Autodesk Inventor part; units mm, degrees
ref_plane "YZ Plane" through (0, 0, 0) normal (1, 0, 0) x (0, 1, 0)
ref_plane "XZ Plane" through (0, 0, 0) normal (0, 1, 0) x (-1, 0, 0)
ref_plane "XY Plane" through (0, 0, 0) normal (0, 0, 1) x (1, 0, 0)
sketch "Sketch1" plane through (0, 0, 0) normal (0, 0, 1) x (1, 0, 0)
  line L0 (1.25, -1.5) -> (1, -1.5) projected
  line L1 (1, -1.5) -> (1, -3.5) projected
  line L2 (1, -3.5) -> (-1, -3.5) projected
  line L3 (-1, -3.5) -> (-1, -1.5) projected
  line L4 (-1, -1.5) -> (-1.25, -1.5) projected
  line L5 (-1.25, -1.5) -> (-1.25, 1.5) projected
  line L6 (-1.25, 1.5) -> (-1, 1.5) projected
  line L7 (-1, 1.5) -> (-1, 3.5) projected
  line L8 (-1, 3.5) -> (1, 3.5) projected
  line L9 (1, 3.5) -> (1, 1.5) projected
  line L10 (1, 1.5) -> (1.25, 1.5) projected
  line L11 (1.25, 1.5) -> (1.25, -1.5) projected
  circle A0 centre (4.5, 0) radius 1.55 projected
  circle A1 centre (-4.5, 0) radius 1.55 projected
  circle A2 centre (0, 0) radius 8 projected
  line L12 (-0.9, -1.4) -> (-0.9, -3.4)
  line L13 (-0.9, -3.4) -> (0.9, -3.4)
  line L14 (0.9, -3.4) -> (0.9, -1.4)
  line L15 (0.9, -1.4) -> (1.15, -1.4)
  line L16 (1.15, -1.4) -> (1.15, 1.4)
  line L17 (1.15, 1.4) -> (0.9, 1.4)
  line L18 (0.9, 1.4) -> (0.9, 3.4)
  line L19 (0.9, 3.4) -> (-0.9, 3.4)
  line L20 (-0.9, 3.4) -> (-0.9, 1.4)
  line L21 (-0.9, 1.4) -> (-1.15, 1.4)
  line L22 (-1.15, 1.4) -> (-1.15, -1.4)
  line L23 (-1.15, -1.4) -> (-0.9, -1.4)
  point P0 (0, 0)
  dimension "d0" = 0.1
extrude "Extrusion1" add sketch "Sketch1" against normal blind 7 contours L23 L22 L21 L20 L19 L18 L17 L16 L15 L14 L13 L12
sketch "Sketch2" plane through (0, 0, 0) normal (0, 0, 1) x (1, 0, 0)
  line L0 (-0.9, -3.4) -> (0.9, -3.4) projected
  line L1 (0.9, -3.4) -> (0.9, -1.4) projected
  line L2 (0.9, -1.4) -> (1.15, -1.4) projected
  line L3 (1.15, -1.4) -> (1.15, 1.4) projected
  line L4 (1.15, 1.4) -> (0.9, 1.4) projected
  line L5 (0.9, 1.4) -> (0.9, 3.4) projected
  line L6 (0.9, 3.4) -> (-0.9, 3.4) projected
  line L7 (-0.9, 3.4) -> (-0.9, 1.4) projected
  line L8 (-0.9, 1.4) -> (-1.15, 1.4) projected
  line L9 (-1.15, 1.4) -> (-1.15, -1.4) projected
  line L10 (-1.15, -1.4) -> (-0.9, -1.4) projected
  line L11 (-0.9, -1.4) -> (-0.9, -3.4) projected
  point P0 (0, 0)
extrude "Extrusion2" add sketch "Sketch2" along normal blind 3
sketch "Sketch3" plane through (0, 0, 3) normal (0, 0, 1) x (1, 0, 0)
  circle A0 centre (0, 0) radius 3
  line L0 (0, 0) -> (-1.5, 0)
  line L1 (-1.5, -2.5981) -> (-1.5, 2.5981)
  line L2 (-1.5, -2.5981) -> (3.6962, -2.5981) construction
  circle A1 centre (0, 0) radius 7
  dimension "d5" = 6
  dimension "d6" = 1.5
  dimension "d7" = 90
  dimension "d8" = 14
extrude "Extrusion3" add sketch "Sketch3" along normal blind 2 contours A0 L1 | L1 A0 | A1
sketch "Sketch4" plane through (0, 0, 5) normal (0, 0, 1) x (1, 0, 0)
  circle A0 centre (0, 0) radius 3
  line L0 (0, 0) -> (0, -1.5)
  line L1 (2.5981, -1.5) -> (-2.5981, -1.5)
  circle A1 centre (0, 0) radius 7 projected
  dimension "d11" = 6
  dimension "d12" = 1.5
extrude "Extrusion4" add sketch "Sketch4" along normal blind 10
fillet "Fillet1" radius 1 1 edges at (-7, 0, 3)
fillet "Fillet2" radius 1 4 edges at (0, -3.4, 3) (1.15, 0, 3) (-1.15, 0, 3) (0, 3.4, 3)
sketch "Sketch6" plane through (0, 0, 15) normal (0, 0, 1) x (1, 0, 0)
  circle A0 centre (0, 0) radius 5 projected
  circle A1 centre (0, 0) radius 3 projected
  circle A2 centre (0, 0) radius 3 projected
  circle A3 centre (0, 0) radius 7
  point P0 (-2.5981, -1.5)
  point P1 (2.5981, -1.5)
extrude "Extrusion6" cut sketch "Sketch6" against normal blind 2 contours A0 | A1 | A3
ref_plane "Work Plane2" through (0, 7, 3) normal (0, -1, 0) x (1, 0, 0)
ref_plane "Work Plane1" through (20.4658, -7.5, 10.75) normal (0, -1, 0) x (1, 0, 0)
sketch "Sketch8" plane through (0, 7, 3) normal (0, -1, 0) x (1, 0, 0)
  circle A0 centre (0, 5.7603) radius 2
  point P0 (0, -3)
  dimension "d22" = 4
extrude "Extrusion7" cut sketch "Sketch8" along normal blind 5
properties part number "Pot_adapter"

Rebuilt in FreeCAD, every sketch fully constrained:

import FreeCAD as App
import Part
import Sketcher

V = App.Vector


def edges_at(feature, points):
    """Names of the edges that pass closest to the given points."""
    edges = feature.Shape.Edges
    near = lambda p: min(range(len(edges)), key=lambda i: edges[i].distToShape(Part.Vertex(*p))[0])
    return sorted({f"Edge{near(p) + 1}" for p in points})


def add_polygon(sketch, points):
    """Adds a closed chain of lines whose ends are joined by coincident constraints."""
    first, n = sketch.GeometryCount, len(points)
    for a, b in zip(points, points[1:] + points[:1]):
        sketch.addGeometry(Part.LineSegment(App.Vector(*a, 0), App.Vector(*b, 0)), False)
    for i in range(n):
        sketch.addConstraint(Sketcher.Constraint("Coincident", first + i, 2, first + (i + 1) % n, 1))

doc = App.newDocument("Part")
body = doc.addObject("PartDesign::Body", "Body")

# Sketch on XY plane
sketch1 = doc.addObject("Sketcher::SketchObject", "Sketch")
body.addObject(sketch1)
sketch1.AttachmentSupport = (doc.XY_Plane, [""])
sketch1.MapMode = "FlatFace"
add_polygon(sketch1, [(-1.15, -1.4), (-0.9, -1.4), (-0.9, -3.4), (0.9, -3.4), (0.9, -1.4), (1.15, -1.4), (1.15, 1.4), (0.9, 1.4), (0.9, 3.4), (-0.9, 3.4), (-0.9, 1.4), (-1.15, 1.4)])  # lines 0-11
sketch1.addConstraint([
    Sketcher.Constraint("Horizontal", 0),
    Sketcher.Constraint("Vertical", 1),
    Sketcher.Constraint("Horizontal", 2),
    Sketcher.Constraint("Vertical", 3),
    Sketcher.Constraint("Horizontal", 4),
    Sketcher.Constraint("Vertical", 5),
    Sketcher.Constraint("Horizontal", 6),
    Sketcher.Constraint("Vertical", 7),
    Sketcher.Constraint("Horizontal", 8),
    Sketcher.Constraint("Vertical", 9),
    Sketcher.Constraint("Horizontal", 10),
    Sketcher.Constraint("Vertical", 11),
    Sketcher.Constraint("Symmetric", 0, 2, 6, 2, -1, 1),
    Sketcher.Constraint("Symmetric", 2, 2, 8, 2, -1, 1),
    Sketcher.Constraint("Symmetric", 4, 2, 10, 2, -1, 1),
    Sketcher.Constraint("Symmetric", 0, 2, 3, 2, -2),
    Sketcher.Constraint("DistanceY", 1, 2, 1, 1, 2.0),
    Sketcher.Constraint("DistanceX", 2, 1, 2, 2, 1.8),
    Sketcher.Constraint("DistanceY", 5, 1, 5, 2, 2.8),
    Sketcher.Constraint("DistanceX", 0, 1, 0, 2, 0.25),
])
pad1 = doc.addObject("PartDesign::Pad", "Pad")
body.addObject(pad1)
pad1.Profile = sketch1
pad1.Length = 7
pad1.Reversed = True

# Sketch on XY plane
sketch2 = doc.addObject("Sketcher::SketchObject", "Sketch001")
body.addObject(sketch2)
sketch2.AttachmentSupport = (doc.XY_Plane, [""])
sketch2.MapMode = "FlatFace"
add_polygon(sketch2, [(-0.9, -1.4), (-0.9, -3.4), (0.9, -3.4), (0.9, -1.4), (1.15, -1.4), (1.15, 1.4), (0.9, 1.4), (0.9, 3.4), (-0.9, 3.4), (-0.9, 1.4), (-1.15, 1.4), (-1.15, -1.4)])  # lines 0-11
sketch2.addConstraint([
    Sketcher.Constraint("Vertical", 0),
    Sketcher.Constraint("Horizontal", 1),
    Sketcher.Constraint("Vertical", 2),
    Sketcher.Constraint("Horizontal", 3),
    Sketcher.Constraint("Vertical", 4),
    Sketcher.Constraint("Horizontal", 5),
    Sketcher.Constraint("Vertical", 6),
    Sketcher.Constraint("Horizontal", 7),
    Sketcher.Constraint("Vertical", 8),
    Sketcher.Constraint("Horizontal", 9),
    Sketcher.Constraint("Vertical", 10),
    Sketcher.Constraint("Horizontal", 11),
    Sketcher.Constraint("Symmetric", 0, 2, 6, 2, -1, 1),
    Sketcher.Constraint("Symmetric", 2, 2, 8, 2, -1, 1),
    Sketcher.Constraint("Symmetric", 4, 2, 10, 2, -1, 1),
    Sketcher.Constraint("Symmetric", 5, 2, 8, 2, -2),
    Sketcher.Constraint("DistanceY", 0, 2, 0, 1, 2.0),
    Sketcher.Constraint("DistanceX", 1, 1, 1, 2, 1.8),
    Sketcher.Constraint("DistanceY", 4, 1, 4, 2, 2.8),
    Sketcher.Constraint("DistanceX", 3, 1, 3, 2, 0.25),
])
pad2 = doc.addObject("PartDesign::Pad", "Pad001")
body.addObject(pad2)
pad2.Profile = sketch2
pad2.Length = 3

# Sketch on XY plane
sketch3 = doc.addObject("Sketcher::SketchObject", "Sketch002")
body.addObject(sketch3)
sketch3.AttachmentSupport = (doc.XY_Plane, [""])
sketch3.MapMode = "FlatFace"
sketch3.AttachmentOffset = App.Placement(V(0, 0, 3), App.Rotation())
sketch3.addGeometry(Part.Circle(V(0, 0, 0), V(0, 0, 1), 7), False)
sketch3.addConstraint([
    Sketcher.Constraint("Coincident", 0, 3, -1, 1),
    Sketcher.Constraint("Diameter", 0, 14.0),
])
pad3 = doc.addObject("PartDesign::Pad", "Pad002")
body.addObject(pad3)
pad3.Profile = sketch3
pad3.Length = 2

# Sketch on XY plane
sketch4 = doc.addObject("Sketcher::SketchObject", "Sketch003")
body.addObject(sketch4)
sketch4.AttachmentSupport = (doc.XY_Plane, [""])
sketch4.MapMode = "FlatFace"
sketch4.AttachmentOffset = App.Placement(V(0, 0, 5), App.Rotation())
sketch4.addGeometry([
    Part.Circle(V(0, 0, 0), V(0, 0, 1), 7),
    Part.Circle(V(0, 0, 0), V(0, 0, 1), 3),
], False)
sketch4.addConstraint([
    Sketcher.Constraint("Coincident", 0, 3, -1, 1),
    Sketcher.Constraint("Coincident", 1, 3, -1, 1),
    Sketcher.Constraint("Diameter", 1, 6.0),
    Sketcher.Constraint("Diameter", 0, 14.0),
])
pad4 = doc.addObject("PartDesign::Pad", "Pad003")
body.addObject(pad4)
pad4.Profile = sketch4
pad4.Length = 10
doc.recompute()

fillet = doc.addObject("PartDesign::Fillet", "Fillet")
body.addObject(fillet)
fillet.Base = (pad4, edges_at(pad4, [(-7, 0, 3)]))
fillet.Radius = 1
doc.recompute()

fillet2 = doc.addObject("PartDesign::Fillet", "Fillet001")
body.addObject(fillet2)
fillet2.Base = (fillet, edges_at(fillet, [
    (0, -3.4, 3),
    (1.15, 0, 3),
    (-1.15, 0, 3),
    (0, 3.4, 3),
]))
fillet2.Radius = 1

# Sketch on XY plane
sketch5 = doc.addObject("Sketcher::SketchObject", "Sketch004")
body.addObject(sketch5)
sketch5.AttachmentSupport = (doc.XY_Plane, [""])
sketch5.MapMode = "FlatFace"
sketch5.AttachmentOffset = App.Placement(V(0, 0, 15), App.Rotation())
sketch5.addGeometry(Part.Circle(V(0, 0, 0), V(0, 0, 1), 7), False)
sketch5.addConstraint([
    Sketcher.Constraint("Coincident", 0, 3, -1, 1),
    Sketcher.Constraint("Diameter", 0, 14.0),
])
pocket1 = doc.addObject("PartDesign::Pocket", "Pocket")
body.addObject(pocket1)
pocket1.Profile = sketch5
pocket1.Length = 2

# Sketch on XZ plane
sketch6 = doc.addObject("Sketcher::SketchObject", "Sketch005")
body.addObject(sketch6)
sketch6.AttachmentSupport = (doc.XZ_Plane, [""])
sketch6.MapMode = "FlatFace"
sketch6.AttachmentOffset = App.Placement(V(0, 0, -7), App.Rotation())
sketch6.addGeometry(Part.Circle(V(0, 8.7603, 0), V(0, 0, 1), 2), False)
sketch6.addConstraint([
    Sketcher.Constraint("PointOnObject", 0, 3, -2),
    Sketcher.Constraint("Diameter", 0, 4.0),
    Sketcher.Constraint("DistanceY", -1, 1, 0, 3, 8.7603),
])
pocket2 = doc.addObject("PartDesign::Pocket", "Pocket001")
body.addObject(pocket2)
pocket2.Profile = sketch6
pocket2.Length = 5
pocket2.Reversed = True

doc.recompute()
